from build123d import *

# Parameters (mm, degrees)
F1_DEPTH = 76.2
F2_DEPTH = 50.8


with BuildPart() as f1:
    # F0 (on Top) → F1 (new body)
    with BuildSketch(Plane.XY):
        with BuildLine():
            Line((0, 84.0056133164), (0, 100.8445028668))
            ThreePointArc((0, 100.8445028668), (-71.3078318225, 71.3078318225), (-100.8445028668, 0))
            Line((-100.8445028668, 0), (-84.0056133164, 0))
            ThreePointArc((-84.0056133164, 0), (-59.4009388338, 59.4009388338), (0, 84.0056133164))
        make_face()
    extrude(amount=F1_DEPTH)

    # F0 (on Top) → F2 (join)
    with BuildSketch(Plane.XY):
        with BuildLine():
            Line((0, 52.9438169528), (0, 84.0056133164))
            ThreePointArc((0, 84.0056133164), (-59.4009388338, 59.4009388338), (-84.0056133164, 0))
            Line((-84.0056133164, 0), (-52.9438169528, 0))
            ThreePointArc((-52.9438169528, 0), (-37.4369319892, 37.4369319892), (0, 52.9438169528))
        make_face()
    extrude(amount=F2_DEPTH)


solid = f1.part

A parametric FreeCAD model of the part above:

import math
import FreeCAD as App
import Part
import Sketcher
Q = App.Units.Quantity

doc = App.newDocument("Part")
body = doc.addObject("PartDesign::Body", "Body")

sketch1 = body.newObject("Sketcher::SketchObject", "Sketch")
sketch1.AttachmentSupport = (doc.getObject("XY_Plane"), [""])
sketch1.MapMode = "FlatFace"
sketch1.addGeometry([
    Part.LineSegment(App.Vector(0, 84, 0), App.Vector(0, 101, 0)),
    Part.ArcOfCircle(Part.Circle(App.Vector(0, 0, 0), App.Vector(0, 0, 1), 101), math.radians(90), math.radians(180)),
    Part.LineSegment(App.Vector(-101, 0, 0), App.Vector(-84, 0, 0)),
    Part.ArcOfCircle(Part.Circle(App.Vector(0, 0, 0), App.Vector(0, 0, 1), 84), math.radians(90), math.radians(180)),
], False)
sketch1.addConstraint([
    Sketcher.Constraint("Coincident", 0, 2, 1, 1),
    Sketcher.Constraint("Coincident", 1, 2, 2, 1),
    Sketcher.Constraint("Coincident", 2, 2, 3, 2),
    Sketcher.Constraint("Coincident", 3, 1, 0, 1),
    Sketcher.Constraint("Vertical", 0),
    Sketcher.Constraint("Horizontal", 2),
    Sketcher.Constraint("Coincident", 1, 3, -1, 1),
    Sketcher.Constraint("Coincident", 3, 3, -1, 1),
    Sketcher.Constraint("PointOnObject", 0, 2, -2),
    Sketcher.Constraint("PointOnObject", 1, 2, -1),
    Sketcher.Constraint("Radius", 1, Q("100.844503 mm")),
    Sketcher.Constraint("Radius", 3, Q("84.005613 mm")),
])
pad1 = body.newObject("PartDesign::Pad", "Pad")
pad1.Profile = sketch1
pad1.Length = Q("3 in")

sketch2 = body.newObject("Sketcher::SketchObject", "Sketch001")
sketch2.AttachmentSupport = (doc.getObject("XY_Plane"), [""])
sketch2.MapMode = "FlatFace"
sketch2.addGeometry([
    Part.LineSegment(App.Vector(0, 53, 0), App.Vector(0, 84, 0)),
    Part.ArcOfCircle(Part.Circle(App.Vector(0, 0, 0), App.Vector(0, 0, 1), 84), math.radians(90), math.radians(180)),
    Part.LineSegment(App.Vector(-84, 0, 0), App.Vector(-53, 0, 0)),
    Part.ArcOfCircle(Part.Circle(App.Vector(0, 0, 0), App.Vector(0, 0, 1), 53), math.radians(90), math.radians(180)),
], False)
sketch2.addConstraint([
    Sketcher.Constraint("Coincident", 0, 2, 1, 1),
    Sketcher.Constraint("Coincident", 1, 2, 2, 1),
    Sketcher.Constraint("Coincident", 2, 2, 3, 2),
    Sketcher.Constraint("Coincident", 3, 1, 0, 1),
    Sketcher.Constraint("Vertical", 0),
    Sketcher.Constraint("Horizontal", 2),
    Sketcher.Constraint("Coincident", 1, 3, -1, 1),
    Sketcher.Constraint("Coincident", 3, 3, -1, 1),
    Sketcher.Constraint("PointOnObject", 0, 2, -2),
    Sketcher.Constraint("PointOnObject", 1, 2, -1),
    Sketcher.Constraint("Radius", 1, Q("84.005613 mm")),
    Sketcher.Constraint("Radius", 3, Q("52.943817 mm")),
])
pad2 = body.newObject("PartDesign::Pad", "Pad001")
pad2.Profile = sketch2
pad2.Length = Q("2 in")

doc.recompute()
